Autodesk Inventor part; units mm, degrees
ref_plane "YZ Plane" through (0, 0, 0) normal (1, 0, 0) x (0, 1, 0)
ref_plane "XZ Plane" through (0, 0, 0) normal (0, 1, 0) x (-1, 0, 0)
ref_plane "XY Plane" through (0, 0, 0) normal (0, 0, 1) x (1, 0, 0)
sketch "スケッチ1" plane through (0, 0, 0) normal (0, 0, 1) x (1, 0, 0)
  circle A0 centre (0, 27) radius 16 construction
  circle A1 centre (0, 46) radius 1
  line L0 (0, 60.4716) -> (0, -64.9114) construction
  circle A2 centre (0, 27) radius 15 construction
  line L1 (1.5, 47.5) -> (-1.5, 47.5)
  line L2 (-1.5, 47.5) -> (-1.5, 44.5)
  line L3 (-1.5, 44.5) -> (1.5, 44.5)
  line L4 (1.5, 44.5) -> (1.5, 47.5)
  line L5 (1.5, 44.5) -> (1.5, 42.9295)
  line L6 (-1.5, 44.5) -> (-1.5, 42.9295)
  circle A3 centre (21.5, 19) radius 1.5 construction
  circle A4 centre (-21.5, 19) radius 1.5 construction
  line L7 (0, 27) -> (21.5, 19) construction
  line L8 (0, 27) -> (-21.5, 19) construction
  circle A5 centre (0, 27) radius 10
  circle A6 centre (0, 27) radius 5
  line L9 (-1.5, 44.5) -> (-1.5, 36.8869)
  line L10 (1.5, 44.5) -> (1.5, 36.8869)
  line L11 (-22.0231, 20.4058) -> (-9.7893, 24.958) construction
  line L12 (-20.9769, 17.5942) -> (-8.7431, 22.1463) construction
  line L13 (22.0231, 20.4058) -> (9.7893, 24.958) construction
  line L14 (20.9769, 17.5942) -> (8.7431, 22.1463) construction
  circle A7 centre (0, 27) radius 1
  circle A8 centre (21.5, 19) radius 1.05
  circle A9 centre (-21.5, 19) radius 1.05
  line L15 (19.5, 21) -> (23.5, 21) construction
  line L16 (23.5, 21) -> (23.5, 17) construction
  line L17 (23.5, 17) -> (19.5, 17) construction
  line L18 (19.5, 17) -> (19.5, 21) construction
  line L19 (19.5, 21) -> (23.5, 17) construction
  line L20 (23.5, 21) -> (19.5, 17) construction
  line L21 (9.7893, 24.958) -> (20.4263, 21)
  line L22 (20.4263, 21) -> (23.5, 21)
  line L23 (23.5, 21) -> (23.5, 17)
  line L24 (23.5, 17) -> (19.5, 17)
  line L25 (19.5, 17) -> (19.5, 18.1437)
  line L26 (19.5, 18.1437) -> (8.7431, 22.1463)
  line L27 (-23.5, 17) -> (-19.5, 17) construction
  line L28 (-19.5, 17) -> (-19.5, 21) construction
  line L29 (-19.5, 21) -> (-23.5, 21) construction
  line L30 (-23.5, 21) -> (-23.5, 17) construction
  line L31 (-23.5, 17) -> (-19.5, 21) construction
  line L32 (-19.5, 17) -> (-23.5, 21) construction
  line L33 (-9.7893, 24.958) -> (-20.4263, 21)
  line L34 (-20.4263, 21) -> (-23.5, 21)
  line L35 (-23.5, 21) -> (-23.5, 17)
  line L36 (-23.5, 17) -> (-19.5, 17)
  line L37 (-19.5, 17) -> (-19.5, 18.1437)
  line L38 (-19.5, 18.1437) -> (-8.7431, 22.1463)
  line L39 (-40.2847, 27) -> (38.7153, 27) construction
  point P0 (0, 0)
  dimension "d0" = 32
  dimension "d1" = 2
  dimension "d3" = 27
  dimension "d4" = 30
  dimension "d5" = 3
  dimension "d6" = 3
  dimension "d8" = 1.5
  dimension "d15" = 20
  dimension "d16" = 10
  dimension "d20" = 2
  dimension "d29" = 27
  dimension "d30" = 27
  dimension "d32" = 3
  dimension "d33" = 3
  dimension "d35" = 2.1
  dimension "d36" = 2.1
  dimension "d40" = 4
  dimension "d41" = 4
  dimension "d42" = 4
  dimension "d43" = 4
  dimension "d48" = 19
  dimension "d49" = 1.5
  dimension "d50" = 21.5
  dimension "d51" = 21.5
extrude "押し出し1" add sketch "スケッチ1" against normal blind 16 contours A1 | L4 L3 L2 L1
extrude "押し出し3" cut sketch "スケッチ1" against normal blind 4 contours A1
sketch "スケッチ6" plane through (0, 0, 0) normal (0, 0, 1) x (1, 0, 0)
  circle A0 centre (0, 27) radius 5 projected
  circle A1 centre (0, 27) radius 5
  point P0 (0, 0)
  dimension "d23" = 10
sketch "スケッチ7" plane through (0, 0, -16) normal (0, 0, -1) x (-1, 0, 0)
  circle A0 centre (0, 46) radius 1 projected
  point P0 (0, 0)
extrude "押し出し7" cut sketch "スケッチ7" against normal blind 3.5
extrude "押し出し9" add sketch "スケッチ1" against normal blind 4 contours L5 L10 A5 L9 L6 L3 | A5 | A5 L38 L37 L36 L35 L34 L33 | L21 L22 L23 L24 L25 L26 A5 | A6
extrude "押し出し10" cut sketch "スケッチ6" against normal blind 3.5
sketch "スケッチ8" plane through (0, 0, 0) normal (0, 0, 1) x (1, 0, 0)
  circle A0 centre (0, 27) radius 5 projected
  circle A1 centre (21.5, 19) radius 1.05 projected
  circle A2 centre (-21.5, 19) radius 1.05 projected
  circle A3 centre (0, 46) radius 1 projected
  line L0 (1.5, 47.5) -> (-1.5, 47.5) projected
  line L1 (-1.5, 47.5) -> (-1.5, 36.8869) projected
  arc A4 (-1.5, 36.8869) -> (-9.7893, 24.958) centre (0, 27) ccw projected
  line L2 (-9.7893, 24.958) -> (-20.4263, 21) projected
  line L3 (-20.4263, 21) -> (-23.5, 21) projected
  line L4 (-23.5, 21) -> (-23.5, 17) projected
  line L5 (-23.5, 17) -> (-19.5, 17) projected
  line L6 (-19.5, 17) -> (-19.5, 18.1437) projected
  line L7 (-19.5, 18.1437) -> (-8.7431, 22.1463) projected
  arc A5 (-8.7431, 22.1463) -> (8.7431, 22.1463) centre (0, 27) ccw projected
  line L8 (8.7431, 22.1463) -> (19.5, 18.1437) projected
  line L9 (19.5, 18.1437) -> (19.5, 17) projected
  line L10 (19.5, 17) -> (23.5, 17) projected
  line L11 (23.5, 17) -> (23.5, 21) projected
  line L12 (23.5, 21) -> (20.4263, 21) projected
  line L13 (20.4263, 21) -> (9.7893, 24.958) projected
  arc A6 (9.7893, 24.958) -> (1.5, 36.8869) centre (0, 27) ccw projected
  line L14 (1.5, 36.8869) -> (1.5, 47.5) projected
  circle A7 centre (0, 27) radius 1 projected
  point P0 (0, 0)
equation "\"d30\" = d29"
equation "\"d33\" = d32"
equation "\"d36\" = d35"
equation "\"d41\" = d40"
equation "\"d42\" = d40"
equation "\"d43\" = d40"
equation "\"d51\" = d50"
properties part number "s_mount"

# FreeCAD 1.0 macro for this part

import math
import FreeCAD as App
import Part
import Sketcher

V = App.Vector
Q = App.Units.Quantity

doc = App.newDocument("Part")
body = doc.addObject("PartDesign::Body", "Body")

sketch1 = body.newObject("Sketcher::SketchObject", "Sketch")
sketch1.AttachmentSupport = (doc.getObject("XY_Plane"), [""])
sketch1.MapMode = "FlatFace"
sketch1.addGeometry([
    Part.LineSegment(V(1.5, 44.5, 0), V(1.5, 47.5, 0)),
    Part.LineSegment(V(1.5, 47.5, 0), V(-1.5, 47.5, 0)),
    Part.LineSegment(V(-1.5, 47.5, 0), V(-1.5, 44.5, 0)),
    Part.LineSegment(V(-1.5, 44.5, 0), V(1.5, 44.5, 0)),
], False)
sketch1.addConstraint([
    Sketcher.Constraint("Coincident", 0, 2, 1, 1),
    Sketcher.Constraint("Coincident", 1, 2, 2, 1),
    Sketcher.Constraint("Coincident", 2, 2, 3, 1),
    Sketcher.Constraint("Coincident", 3, 2, 0, 1),
    Sketcher.Constraint("Vertical", 0),
    Sketcher.Constraint("Horizontal", 1),
    Sketcher.Constraint("Vertical", 2),
    Sketcher.Constraint("Horizontal", 3),
    Sketcher.Constraint("Equal", 3, 0),
    Sketcher.Constraint("DistanceX", 1, 2, 1, 1, 3.0),
    Sketcher.Constraint("DistanceX", -1, 1, 0, 2, 1.5),
    Sketcher.Constraint("DistanceY", -1, 1, 0, 2, 47.5),
])
pad1 = body.newObject("PartDesign::Pad", "Pad")
pad1.Profile = sketch1
pad1.Length = 16
pad1.Reversed = True

sketch2 = body.newObject("Sketcher::SketchObject", "Sketch001")
sketch2.AttachmentSupport = (doc.getObject("XY_Plane"), [""])
sketch2.MapMode = "FlatFace"
sketch2.addGeometry(Part.Circle(V(0, 46, 0), V(0, 0, 1), 1), False)
sketch2.addConstraint([
    Sketcher.Constraint("PointOnObject", 0, 3, -2),
    Sketcher.Constraint("Diameter", 0, 2.0),
    Sketcher.Constraint("DistanceY", -1, 1, 0, 3, 46.0),
])
pocket1 = body.newObject("PartDesign::Pocket", "Pocket")
pocket1.Profile = sketch2
pocket1.Length = 4

sketch3 = body.newObject("Sketcher::SketchObject", "Sketch002")
sketch3.AttachmentSupport = (doc.getObject("XY_Plane"), [""])
sketch3.MapMode = "FlatFace"
sketch3.AttachmentOffset = App.Placement(V(0, 0, -16), App.Rotation())
sketch3.addGeometry(Part.Circle(V(0, 46, 0), V(0, 0, 1), 1), False)
sketch3.addConstraint([
    Sketcher.Constraint("PointOnObject", 0, 3, -2),
    Sketcher.Constraint("Diameter", 0, 2.0),
    Sketcher.Constraint("DistanceY", -1, 1, 0, 3, 46.0),
])
pocket2 = body.newObject("PartDesign::Pocket", "Pocket001")
pocket2.Profile = sketch3
pocket2.Length = 3.5
pocket2.Reversed = True

sketch4 = body.newObject("Sketcher::SketchObject", "Sketch003")
sketch4.AttachmentSupport = (doc.getObject("XY_Plane"), [""])
sketch4.MapMode = "FlatFace"
sketch4.addGeometry([
    Part.LineSegment(V(1.5, 44.5, 0), V(-1.5, 44.5, 0)),
    Part.LineSegment(V(-1.5, 44.5, 0), V(-1.5, 36.9, 0)),
    Part.ArcOfCircle(Part.Circle(V(0, 27, 0), V(0, 0, 1), 10), math.radians(99), math.radians(192)),
    Part.LineSegment(V(-9.8, 25, 0), V(-20.4, 21, 0)),
    Part.LineSegment(V(-20.4, 21, 0), V(-23.5, 21, 0)),
    Part.LineSegment(V(-23.5, 21, 0), V(-23.5, 17, 0)),
    Part.LineSegment(V(-23.5, 17, 0), V(-19.5, 17, 0)),
    Part.LineSegment(V(-19.5, 17, 0), V(-19.5, 18.1, 0)),
    Part.LineSegment(V(-19.5, 18.1, 0), V(-8.7, 22.1, 0)),
    Part.ArcOfCircle(Part.Circle(V(0, 27, 0), V(0, 0, 1), 10), math.radians(-151), math.radians(-29)),
    Part.LineSegment(V(8.7, 22.1, 0), V(19.5, 18.1, 0)),
    Part.LineSegment(V(19.5, 18.1, 0), V(19.5, 17, 0)),
    Part.LineSegment(V(19.5, 17, 0), V(23.5, 17, 0)),
    Part.LineSegment(V(23.5, 17, 0), V(23.5, 21, 0)),
    Part.LineSegment(V(23.5, 21, 0), V(20.4, 21, 0)),
    Part.LineSegment(V(20.4, 21, 0), V(9.8, 25, 0)),
    Part.ArcOfCircle(Part.Circle(V(0, 27, 0), V(0, 0, 1), 10), math.radians(-12), math.radians(81)),
    Part.LineSegment(V(1.5, 36.9, 0), V(1.5, 44.5, 0)),
    Part.Circle(V(21.5, 19, 0), V(0, 0, 1), 1.1),
    Part.Circle(V(-21.5, 19, 0), V(0, 0, 1), 1.1),
    Part.Circle(V(0, 27, 0), V(0, 0, 1), 1),
], False)
sketch4.addConstraint([
    Sketcher.Constraint("Coincident", 0, 2, 1, 1),
    Sketcher.Constraint("Coincident", 1, 2, 2, 1),
    Sketcher.Constraint("Coincident", 2, 2, 3, 1),
    Sketcher.Constraint("Coincident", 3, 2, 4, 1),
    Sketcher.Constraint("Coincident", 4, 2, 5, 1),
    Sketcher.Constraint("Coincident", 5, 2, 6, 1),
    Sketcher.Constraint("Coincident", 6, 2, 7, 1),
    Sketcher.Constraint("Coincident", 7, 2, 8, 1),
    Sketcher.Constraint("Coincident", 8, 2, 9, 1),
    Sketcher.Constraint("Coincident", 9, 2, 10, 1),
    Sketcher.Constraint("Coincident", 10, 2, 11, 1),
    Sketcher.Constraint("Coincident", 11, 2, 12, 1),
    Sketcher.Constraint("Coincident", 12, 2, 13, 1),
    Sketcher.Constraint("Coincident", 13, 2, 14, 1),
    Sketcher.Constraint("Coincident", 14, 2, 15, 1),
    Sketcher.Constraint("Coincident", 15, 2, 16, 1),
    Sketcher.Constraint("Coincident", 16, 2, 17, 1),
    Sketcher.Constraint("Coincident", 17, 2, 0, 1),
    Sketcher.Constraint("Horizontal", 0),
    Sketcher.Constraint("Vertical", 1),
    Sketcher.Constraint("Horizontal", 4),
    Sketcher.Constraint("Vertical", 5),
    Sketcher.Constraint("Horizontal", 6),
    Sketcher.Constraint("Vertical", 7),
    Sketcher.Constraint("Vertical", 11),
    Sketcher.Constraint("Horizontal", 12),
    Sketcher.Constraint("Vertical", 13),
    Sketcher.Constraint("Horizontal", 14),
    Sketcher.Constraint("Vertical", 17),
    Sketcher.Constraint("Coincident", 9, 3, 2, 3),
    Sketcher.Constraint("Coincident", 16, 3, 2, 3),
    Sketcher.Constraint("Coincident", 20, 3, 2, 3),
    Sketcher.Constraint("Equal", 2, 9),
    Sketcher.Constraint("Equal", 9, 16),
    Sketcher.Constraint("Equal", 18, 19),
    Sketcher.Constraint("Symmetric", 18, 3, 19, 3, -2),
    Sketcher.Constraint("Symmetric", 8, 2, 9, 2, -2),
    Sketcher.Constraint("Symmetric", 7, 2, 10, 2, -2),
    Sketcher.Constraint("Symmetric", 5, 2, 12, 2, -2),
    Sketcher.Constraint("Symmetric", 3, 2, 14, 2, -2),
    Sketcher.Constraint("Parallel", 3, 8),
    Sketcher.Constraint("Parallel", 10, 15),
    Sketcher.Constraint("Horizontal", 1, 2, 16, 2),
    Sketcher.Constraint("Equal", 12, 5),
    Sketcher.Constraint("Diameter", 20, 2.0),
    Sketcher.Constraint("Radius", 2, 10.0),
    Sketcher.Constraint("Diameter", 18, 2.1),
    Sketcher.Constraint("DistanceX", 0, 2, 0, 1, 3.0),
    Sketcher.Constraint("DistanceX", 6, 1, 6, 2, 4.0),
    Sketcher.Constraint("DistanceY", -1, 1, 2, 3, 27.0),
    Sketcher.Constraint("DistanceY", -1, 1, 18, 3, 19.0),
    Sketcher.Constraint("DistanceX", 19, 3, 0, 2, 20.0),
    Sketcher.Constraint("DistanceY", 19, 3, 3, 2, 2.0),
    Sketcher.Constraint("DistanceX", 4, 2, 19, 3, 2.0),
    Sketcher.Constraint("DistanceY", -1, 1, 0, 2, 44.5),
    Sketcher.Constraint("Angle", 3, Q("-159.59 deg")),
    Sketcher.Constraint("DistanceX", 4, 2, 4, 1, 3.0737),
    Sketcher.Constraint("DistanceY", 7, 1, 7, 2, 1.1437),
])
pad2 = body.newObject("PartDesign::Pad", "Pad001")
pad2.Profile = sketch4
pad2.Length = 4
pad2.Reversed = True

sketch5 = body.newObject("Sketcher::SketchObject", "Sketch004")
sketch5.AttachmentSupport = (doc.getObject("XY_Plane"), [""])
sketch5.MapMode = "FlatFace"
sketch5.addGeometry(Part.Circle(V(0, 27, 0), V(0, 0, 1), 5), False)
sketch5.addConstraint([
    Sketcher.Constraint("PointOnObject", 0, 3, -2),
    Sketcher.Constraint("Diameter", 0, 10.0),
    Sketcher.Constraint("DistanceY", -1, 1, 0, 3, 27.0),
])
pocket3 = body.newObject("PartDesign::Pocket", "Pocket002")
pocket3.Profile = sketch5
pocket3.Length = 3.5

doc.recompute()
